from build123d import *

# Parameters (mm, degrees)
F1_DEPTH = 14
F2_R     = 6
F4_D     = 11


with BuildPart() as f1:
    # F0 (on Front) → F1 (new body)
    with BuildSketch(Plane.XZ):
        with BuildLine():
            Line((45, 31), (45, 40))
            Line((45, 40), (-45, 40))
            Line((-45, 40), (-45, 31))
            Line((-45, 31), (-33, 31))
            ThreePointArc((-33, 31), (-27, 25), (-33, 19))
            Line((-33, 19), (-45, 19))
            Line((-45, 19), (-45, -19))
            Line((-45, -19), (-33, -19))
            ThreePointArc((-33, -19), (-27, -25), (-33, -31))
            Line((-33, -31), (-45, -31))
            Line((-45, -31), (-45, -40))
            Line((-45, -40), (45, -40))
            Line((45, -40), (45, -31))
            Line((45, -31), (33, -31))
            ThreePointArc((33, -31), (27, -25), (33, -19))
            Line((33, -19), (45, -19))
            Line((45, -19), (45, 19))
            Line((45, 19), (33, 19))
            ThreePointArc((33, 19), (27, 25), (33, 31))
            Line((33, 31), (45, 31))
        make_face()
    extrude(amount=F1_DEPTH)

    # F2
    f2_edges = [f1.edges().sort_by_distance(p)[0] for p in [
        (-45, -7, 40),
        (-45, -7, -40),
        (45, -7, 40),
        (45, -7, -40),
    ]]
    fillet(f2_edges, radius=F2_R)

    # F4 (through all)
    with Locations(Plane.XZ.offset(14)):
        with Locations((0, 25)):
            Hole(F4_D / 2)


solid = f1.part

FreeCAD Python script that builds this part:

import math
import FreeCAD as App
import Part
import Sketcher

V = App.Vector


def edges_at(feature, points):
    """Names of the edges that pass closest to the given points."""
    edges = feature.Shape.Edges
    near = lambda p: min(range(len(edges)), key=lambda i: edges[i].distToShape(Part.Vertex(*p))[0])
    return sorted({f"Edge{near(p) + 1}" for p in points})

doc = App.newDocument("Part")
body = doc.addObject("PartDesign::Body", "Body")

sketch1 = body.newObject("Sketcher::SketchObject", "Sketch")
sketch1.AttachmentSupport = (doc.getObject("XZ_Plane"), [""])
sketch1.MapMode = "FlatFace"
sketch1.addGeometry([
    Part.LineSegment(V(45, 31, 0), V(45, 40, 0)),
    Part.LineSegment(V(45, 40, 0), V(-45, 40, 0)),
    Part.LineSegment(V(-45, 40, 0), V(-45, 31, 0)),
    Part.LineSegment(V(-45, 31, 0), V(-33, 31, 0)),
    Part.ArcOfCircle(Part.Circle(V(-33, 25, 0), V(0, 0, 1), 6), math.radians(-90), math.radians(90)),
    Part.LineSegment(V(-33, 19, 0), V(-45, 19, 0)),
    Part.LineSegment(V(-45, 19, 0), V(-45, -19, 0)),
    Part.LineSegment(V(-45, -19, 0), V(-33, -19, 0)),
    Part.ArcOfCircle(Part.Circle(V(-33, -25, 0), V(0, 0, 1), 6), math.radians(-90), math.radians(90)),
    Part.LineSegment(V(-33, -31, 0), V(-45, -31, 0)),
    Part.LineSegment(V(-45, -31, 0), V(-45, -40, 0)),
    Part.LineSegment(V(-45, -40, 0), V(45, -40, 0)),
    Part.LineSegment(V(45, -40, 0), V(45, -31, 0)),
    Part.LineSegment(V(45, -31, 0), V(33, -31, 0)),
    Part.ArcOfCircle(Part.Circle(V(33, -25, 0), V(0, 0, 1), 6), math.radians(90), math.radians(270)),
    Part.LineSegment(V(33, -19, 0), V(45, -19, 0)),
    Part.LineSegment(V(45, -19, 0), V(45, 19, 0)),
    Part.LineSegment(V(45, 19, 0), V(33, 19, 0)),
    Part.ArcOfCircle(Part.Circle(V(33, 25, 0), V(0, 0, 1), 6), math.radians(90), math.radians(270)),
    Part.LineSegment(V(33, 31, 0), V(45, 31, 0)),
], False)
sketch1.addConstraint([
    Sketcher.Constraint("Coincident", 0, 2, 1, 1),
    Sketcher.Constraint("Coincident", 1, 2, 2, 1),
    Sketcher.Constraint("Coincident", 2, 2, 3, 1),
    Sketcher.Constraint("Tangent", 3, 2, 4, 2),
    Sketcher.Constraint("Tangent", 4, 1, 5, 1),
    Sketcher.Constraint("Coincident", 5, 2, 6, 1),
    Sketcher.Constraint("Coincident", 6, 2, 7, 1),
    Sketcher.Constraint("Tangent", 7, 2, 8, 2),
    Sketcher.Constraint("Tangent", 8, 1, 9, 1),
    Sketcher.Constraint("Coincident", 9, 2, 10, 1),
    Sketcher.Constraint("Coincident", 10, 2, 11, 1),
    Sketcher.Constraint("Coincident", 11, 2, 12, 1),
    Sketcher.Constraint("Coincident", 12, 2, 13, 1),
    Sketcher.Constraint("Tangent", 13, 2, 14, 2),
    Sketcher.Constraint("Tangent", 14, 1, 15, 1),
    Sketcher.Constraint("Coincident", 15, 2, 16, 1),
    Sketcher.Constraint("Coincident", 16, 2, 17, 1),
    Sketcher.Constraint("Tangent", 17, 2, 18, 2),
    Sketcher.Constraint("Tangent", 18, 1, 19, 1),
    Sketcher.Constraint("Coincident", 19, 2, 0, 1),
    Sketcher.Constraint("Vertical", 0),
    Sketcher.Constraint("Horizontal", 1),
    Sketcher.Constraint("Vertical", 2),
    Sketcher.Constraint("Horizontal", 3),
    Sketcher.Constraint("Horizontal", 5),
    Sketcher.Constraint("Vertical", 6),
    Sketcher.Constraint("Horizontal", 7),
    Sketcher.Constraint("Horizontal", 9),
    Sketcher.Constraint("Vertical", 10),
    Sketcher.Constraint("Horizontal", 11),
    Sketcher.Constraint("Vertical", 12),
    Sketcher.Constraint("Horizontal", 13),
    Sketcher.Constraint("Horizontal", 15),
    Sketcher.Constraint("Vertical", 16),
    Sketcher.Constraint("Horizontal", 17),
    Sketcher.Constraint("Horizontal", 19),
    Sketcher.Constraint("Equal", 4, 8),
    Sketcher.Constraint("Equal", 8, 14),
    Sketcher.Constraint("Equal", 14, 18),
    Sketcher.Constraint("Symmetric", 4, 3, 14, 3, -1, 1),
    Sketcher.Constraint("Symmetric", 8, 3, 18, 3, -1, 1),
    Sketcher.Constraint("Symmetric", 0, 2, 10, 2, -1, 1),
    Sketcher.Constraint("Symmetric", 8, 3, 14, 3, -2),
    Sketcher.Constraint("Vertical", 2, 2, 5, 2),
    Sketcher.Constraint("Vertical", 6, 2, 9, 2),
    Sketcher.Constraint("Vertical", 0, 2, 11, 2),
    Sketcher.Constraint("Vertical", 12, 2, 15, 2),
    Sketcher.Constraint("Radius", 4, 6.0),
    Sketcher.Constraint("DistanceX", 1, 2, 1, 1, 90.0),
    Sketcher.Constraint("DistanceX", 3, 1, 3, 2, 12.0),
    Sketcher.Constraint("DistanceY", 0, 1, 0, 2, 9.0),
    Sketcher.Constraint("DistanceY", 6, 2, 6, 1, 38.0),
])
pad1 = body.newObject("PartDesign::Pad", "Pad")
pad1.Profile = sketch1
pad1.Length = 14
doc.recompute()

fillet = body.newObject("PartDesign::Fillet", "Fillet")
fillet.Base = (pad1, edges_at(pad1, [
    (-45, -7, 40),
    (-45, -7, -40),
    (45, -7, 40),
    (45, -7, -40),
]))
fillet.Radius = 6

sketch2 = body.newObject("Sketcher::SketchObject", "Sketch001")
sketch2.AttachmentSupport = (doc.getObject("XZ_Plane"), [""])
sketch2.MapMode = "FlatFace"
sketch2.AttachmentOffset = App.Placement(V(0, 0, 14), App.Rotation())
sketch2.addGeometry(Part.Circle(V(0, 25, 0), V(0, 0, 1), 5.5), False)
sketch2.addConstraint([
    Sketcher.Constraint("PointOnObject", 0, 3, -2),
    Sketcher.Constraint("Diameter", 0, 11.0),
    Sketcher.Constraint("DistanceY", -1, 1, 0, 3, 25.0),
])
doc.recompute()
hole = body.newObject("PartDesign::Hole", "Hole")
hole.Profile = sketch2
hole.ThreadType = "None"
hole.Diameter = 11
hole.DepthType = "ThroughAll"

doc.recompute()
